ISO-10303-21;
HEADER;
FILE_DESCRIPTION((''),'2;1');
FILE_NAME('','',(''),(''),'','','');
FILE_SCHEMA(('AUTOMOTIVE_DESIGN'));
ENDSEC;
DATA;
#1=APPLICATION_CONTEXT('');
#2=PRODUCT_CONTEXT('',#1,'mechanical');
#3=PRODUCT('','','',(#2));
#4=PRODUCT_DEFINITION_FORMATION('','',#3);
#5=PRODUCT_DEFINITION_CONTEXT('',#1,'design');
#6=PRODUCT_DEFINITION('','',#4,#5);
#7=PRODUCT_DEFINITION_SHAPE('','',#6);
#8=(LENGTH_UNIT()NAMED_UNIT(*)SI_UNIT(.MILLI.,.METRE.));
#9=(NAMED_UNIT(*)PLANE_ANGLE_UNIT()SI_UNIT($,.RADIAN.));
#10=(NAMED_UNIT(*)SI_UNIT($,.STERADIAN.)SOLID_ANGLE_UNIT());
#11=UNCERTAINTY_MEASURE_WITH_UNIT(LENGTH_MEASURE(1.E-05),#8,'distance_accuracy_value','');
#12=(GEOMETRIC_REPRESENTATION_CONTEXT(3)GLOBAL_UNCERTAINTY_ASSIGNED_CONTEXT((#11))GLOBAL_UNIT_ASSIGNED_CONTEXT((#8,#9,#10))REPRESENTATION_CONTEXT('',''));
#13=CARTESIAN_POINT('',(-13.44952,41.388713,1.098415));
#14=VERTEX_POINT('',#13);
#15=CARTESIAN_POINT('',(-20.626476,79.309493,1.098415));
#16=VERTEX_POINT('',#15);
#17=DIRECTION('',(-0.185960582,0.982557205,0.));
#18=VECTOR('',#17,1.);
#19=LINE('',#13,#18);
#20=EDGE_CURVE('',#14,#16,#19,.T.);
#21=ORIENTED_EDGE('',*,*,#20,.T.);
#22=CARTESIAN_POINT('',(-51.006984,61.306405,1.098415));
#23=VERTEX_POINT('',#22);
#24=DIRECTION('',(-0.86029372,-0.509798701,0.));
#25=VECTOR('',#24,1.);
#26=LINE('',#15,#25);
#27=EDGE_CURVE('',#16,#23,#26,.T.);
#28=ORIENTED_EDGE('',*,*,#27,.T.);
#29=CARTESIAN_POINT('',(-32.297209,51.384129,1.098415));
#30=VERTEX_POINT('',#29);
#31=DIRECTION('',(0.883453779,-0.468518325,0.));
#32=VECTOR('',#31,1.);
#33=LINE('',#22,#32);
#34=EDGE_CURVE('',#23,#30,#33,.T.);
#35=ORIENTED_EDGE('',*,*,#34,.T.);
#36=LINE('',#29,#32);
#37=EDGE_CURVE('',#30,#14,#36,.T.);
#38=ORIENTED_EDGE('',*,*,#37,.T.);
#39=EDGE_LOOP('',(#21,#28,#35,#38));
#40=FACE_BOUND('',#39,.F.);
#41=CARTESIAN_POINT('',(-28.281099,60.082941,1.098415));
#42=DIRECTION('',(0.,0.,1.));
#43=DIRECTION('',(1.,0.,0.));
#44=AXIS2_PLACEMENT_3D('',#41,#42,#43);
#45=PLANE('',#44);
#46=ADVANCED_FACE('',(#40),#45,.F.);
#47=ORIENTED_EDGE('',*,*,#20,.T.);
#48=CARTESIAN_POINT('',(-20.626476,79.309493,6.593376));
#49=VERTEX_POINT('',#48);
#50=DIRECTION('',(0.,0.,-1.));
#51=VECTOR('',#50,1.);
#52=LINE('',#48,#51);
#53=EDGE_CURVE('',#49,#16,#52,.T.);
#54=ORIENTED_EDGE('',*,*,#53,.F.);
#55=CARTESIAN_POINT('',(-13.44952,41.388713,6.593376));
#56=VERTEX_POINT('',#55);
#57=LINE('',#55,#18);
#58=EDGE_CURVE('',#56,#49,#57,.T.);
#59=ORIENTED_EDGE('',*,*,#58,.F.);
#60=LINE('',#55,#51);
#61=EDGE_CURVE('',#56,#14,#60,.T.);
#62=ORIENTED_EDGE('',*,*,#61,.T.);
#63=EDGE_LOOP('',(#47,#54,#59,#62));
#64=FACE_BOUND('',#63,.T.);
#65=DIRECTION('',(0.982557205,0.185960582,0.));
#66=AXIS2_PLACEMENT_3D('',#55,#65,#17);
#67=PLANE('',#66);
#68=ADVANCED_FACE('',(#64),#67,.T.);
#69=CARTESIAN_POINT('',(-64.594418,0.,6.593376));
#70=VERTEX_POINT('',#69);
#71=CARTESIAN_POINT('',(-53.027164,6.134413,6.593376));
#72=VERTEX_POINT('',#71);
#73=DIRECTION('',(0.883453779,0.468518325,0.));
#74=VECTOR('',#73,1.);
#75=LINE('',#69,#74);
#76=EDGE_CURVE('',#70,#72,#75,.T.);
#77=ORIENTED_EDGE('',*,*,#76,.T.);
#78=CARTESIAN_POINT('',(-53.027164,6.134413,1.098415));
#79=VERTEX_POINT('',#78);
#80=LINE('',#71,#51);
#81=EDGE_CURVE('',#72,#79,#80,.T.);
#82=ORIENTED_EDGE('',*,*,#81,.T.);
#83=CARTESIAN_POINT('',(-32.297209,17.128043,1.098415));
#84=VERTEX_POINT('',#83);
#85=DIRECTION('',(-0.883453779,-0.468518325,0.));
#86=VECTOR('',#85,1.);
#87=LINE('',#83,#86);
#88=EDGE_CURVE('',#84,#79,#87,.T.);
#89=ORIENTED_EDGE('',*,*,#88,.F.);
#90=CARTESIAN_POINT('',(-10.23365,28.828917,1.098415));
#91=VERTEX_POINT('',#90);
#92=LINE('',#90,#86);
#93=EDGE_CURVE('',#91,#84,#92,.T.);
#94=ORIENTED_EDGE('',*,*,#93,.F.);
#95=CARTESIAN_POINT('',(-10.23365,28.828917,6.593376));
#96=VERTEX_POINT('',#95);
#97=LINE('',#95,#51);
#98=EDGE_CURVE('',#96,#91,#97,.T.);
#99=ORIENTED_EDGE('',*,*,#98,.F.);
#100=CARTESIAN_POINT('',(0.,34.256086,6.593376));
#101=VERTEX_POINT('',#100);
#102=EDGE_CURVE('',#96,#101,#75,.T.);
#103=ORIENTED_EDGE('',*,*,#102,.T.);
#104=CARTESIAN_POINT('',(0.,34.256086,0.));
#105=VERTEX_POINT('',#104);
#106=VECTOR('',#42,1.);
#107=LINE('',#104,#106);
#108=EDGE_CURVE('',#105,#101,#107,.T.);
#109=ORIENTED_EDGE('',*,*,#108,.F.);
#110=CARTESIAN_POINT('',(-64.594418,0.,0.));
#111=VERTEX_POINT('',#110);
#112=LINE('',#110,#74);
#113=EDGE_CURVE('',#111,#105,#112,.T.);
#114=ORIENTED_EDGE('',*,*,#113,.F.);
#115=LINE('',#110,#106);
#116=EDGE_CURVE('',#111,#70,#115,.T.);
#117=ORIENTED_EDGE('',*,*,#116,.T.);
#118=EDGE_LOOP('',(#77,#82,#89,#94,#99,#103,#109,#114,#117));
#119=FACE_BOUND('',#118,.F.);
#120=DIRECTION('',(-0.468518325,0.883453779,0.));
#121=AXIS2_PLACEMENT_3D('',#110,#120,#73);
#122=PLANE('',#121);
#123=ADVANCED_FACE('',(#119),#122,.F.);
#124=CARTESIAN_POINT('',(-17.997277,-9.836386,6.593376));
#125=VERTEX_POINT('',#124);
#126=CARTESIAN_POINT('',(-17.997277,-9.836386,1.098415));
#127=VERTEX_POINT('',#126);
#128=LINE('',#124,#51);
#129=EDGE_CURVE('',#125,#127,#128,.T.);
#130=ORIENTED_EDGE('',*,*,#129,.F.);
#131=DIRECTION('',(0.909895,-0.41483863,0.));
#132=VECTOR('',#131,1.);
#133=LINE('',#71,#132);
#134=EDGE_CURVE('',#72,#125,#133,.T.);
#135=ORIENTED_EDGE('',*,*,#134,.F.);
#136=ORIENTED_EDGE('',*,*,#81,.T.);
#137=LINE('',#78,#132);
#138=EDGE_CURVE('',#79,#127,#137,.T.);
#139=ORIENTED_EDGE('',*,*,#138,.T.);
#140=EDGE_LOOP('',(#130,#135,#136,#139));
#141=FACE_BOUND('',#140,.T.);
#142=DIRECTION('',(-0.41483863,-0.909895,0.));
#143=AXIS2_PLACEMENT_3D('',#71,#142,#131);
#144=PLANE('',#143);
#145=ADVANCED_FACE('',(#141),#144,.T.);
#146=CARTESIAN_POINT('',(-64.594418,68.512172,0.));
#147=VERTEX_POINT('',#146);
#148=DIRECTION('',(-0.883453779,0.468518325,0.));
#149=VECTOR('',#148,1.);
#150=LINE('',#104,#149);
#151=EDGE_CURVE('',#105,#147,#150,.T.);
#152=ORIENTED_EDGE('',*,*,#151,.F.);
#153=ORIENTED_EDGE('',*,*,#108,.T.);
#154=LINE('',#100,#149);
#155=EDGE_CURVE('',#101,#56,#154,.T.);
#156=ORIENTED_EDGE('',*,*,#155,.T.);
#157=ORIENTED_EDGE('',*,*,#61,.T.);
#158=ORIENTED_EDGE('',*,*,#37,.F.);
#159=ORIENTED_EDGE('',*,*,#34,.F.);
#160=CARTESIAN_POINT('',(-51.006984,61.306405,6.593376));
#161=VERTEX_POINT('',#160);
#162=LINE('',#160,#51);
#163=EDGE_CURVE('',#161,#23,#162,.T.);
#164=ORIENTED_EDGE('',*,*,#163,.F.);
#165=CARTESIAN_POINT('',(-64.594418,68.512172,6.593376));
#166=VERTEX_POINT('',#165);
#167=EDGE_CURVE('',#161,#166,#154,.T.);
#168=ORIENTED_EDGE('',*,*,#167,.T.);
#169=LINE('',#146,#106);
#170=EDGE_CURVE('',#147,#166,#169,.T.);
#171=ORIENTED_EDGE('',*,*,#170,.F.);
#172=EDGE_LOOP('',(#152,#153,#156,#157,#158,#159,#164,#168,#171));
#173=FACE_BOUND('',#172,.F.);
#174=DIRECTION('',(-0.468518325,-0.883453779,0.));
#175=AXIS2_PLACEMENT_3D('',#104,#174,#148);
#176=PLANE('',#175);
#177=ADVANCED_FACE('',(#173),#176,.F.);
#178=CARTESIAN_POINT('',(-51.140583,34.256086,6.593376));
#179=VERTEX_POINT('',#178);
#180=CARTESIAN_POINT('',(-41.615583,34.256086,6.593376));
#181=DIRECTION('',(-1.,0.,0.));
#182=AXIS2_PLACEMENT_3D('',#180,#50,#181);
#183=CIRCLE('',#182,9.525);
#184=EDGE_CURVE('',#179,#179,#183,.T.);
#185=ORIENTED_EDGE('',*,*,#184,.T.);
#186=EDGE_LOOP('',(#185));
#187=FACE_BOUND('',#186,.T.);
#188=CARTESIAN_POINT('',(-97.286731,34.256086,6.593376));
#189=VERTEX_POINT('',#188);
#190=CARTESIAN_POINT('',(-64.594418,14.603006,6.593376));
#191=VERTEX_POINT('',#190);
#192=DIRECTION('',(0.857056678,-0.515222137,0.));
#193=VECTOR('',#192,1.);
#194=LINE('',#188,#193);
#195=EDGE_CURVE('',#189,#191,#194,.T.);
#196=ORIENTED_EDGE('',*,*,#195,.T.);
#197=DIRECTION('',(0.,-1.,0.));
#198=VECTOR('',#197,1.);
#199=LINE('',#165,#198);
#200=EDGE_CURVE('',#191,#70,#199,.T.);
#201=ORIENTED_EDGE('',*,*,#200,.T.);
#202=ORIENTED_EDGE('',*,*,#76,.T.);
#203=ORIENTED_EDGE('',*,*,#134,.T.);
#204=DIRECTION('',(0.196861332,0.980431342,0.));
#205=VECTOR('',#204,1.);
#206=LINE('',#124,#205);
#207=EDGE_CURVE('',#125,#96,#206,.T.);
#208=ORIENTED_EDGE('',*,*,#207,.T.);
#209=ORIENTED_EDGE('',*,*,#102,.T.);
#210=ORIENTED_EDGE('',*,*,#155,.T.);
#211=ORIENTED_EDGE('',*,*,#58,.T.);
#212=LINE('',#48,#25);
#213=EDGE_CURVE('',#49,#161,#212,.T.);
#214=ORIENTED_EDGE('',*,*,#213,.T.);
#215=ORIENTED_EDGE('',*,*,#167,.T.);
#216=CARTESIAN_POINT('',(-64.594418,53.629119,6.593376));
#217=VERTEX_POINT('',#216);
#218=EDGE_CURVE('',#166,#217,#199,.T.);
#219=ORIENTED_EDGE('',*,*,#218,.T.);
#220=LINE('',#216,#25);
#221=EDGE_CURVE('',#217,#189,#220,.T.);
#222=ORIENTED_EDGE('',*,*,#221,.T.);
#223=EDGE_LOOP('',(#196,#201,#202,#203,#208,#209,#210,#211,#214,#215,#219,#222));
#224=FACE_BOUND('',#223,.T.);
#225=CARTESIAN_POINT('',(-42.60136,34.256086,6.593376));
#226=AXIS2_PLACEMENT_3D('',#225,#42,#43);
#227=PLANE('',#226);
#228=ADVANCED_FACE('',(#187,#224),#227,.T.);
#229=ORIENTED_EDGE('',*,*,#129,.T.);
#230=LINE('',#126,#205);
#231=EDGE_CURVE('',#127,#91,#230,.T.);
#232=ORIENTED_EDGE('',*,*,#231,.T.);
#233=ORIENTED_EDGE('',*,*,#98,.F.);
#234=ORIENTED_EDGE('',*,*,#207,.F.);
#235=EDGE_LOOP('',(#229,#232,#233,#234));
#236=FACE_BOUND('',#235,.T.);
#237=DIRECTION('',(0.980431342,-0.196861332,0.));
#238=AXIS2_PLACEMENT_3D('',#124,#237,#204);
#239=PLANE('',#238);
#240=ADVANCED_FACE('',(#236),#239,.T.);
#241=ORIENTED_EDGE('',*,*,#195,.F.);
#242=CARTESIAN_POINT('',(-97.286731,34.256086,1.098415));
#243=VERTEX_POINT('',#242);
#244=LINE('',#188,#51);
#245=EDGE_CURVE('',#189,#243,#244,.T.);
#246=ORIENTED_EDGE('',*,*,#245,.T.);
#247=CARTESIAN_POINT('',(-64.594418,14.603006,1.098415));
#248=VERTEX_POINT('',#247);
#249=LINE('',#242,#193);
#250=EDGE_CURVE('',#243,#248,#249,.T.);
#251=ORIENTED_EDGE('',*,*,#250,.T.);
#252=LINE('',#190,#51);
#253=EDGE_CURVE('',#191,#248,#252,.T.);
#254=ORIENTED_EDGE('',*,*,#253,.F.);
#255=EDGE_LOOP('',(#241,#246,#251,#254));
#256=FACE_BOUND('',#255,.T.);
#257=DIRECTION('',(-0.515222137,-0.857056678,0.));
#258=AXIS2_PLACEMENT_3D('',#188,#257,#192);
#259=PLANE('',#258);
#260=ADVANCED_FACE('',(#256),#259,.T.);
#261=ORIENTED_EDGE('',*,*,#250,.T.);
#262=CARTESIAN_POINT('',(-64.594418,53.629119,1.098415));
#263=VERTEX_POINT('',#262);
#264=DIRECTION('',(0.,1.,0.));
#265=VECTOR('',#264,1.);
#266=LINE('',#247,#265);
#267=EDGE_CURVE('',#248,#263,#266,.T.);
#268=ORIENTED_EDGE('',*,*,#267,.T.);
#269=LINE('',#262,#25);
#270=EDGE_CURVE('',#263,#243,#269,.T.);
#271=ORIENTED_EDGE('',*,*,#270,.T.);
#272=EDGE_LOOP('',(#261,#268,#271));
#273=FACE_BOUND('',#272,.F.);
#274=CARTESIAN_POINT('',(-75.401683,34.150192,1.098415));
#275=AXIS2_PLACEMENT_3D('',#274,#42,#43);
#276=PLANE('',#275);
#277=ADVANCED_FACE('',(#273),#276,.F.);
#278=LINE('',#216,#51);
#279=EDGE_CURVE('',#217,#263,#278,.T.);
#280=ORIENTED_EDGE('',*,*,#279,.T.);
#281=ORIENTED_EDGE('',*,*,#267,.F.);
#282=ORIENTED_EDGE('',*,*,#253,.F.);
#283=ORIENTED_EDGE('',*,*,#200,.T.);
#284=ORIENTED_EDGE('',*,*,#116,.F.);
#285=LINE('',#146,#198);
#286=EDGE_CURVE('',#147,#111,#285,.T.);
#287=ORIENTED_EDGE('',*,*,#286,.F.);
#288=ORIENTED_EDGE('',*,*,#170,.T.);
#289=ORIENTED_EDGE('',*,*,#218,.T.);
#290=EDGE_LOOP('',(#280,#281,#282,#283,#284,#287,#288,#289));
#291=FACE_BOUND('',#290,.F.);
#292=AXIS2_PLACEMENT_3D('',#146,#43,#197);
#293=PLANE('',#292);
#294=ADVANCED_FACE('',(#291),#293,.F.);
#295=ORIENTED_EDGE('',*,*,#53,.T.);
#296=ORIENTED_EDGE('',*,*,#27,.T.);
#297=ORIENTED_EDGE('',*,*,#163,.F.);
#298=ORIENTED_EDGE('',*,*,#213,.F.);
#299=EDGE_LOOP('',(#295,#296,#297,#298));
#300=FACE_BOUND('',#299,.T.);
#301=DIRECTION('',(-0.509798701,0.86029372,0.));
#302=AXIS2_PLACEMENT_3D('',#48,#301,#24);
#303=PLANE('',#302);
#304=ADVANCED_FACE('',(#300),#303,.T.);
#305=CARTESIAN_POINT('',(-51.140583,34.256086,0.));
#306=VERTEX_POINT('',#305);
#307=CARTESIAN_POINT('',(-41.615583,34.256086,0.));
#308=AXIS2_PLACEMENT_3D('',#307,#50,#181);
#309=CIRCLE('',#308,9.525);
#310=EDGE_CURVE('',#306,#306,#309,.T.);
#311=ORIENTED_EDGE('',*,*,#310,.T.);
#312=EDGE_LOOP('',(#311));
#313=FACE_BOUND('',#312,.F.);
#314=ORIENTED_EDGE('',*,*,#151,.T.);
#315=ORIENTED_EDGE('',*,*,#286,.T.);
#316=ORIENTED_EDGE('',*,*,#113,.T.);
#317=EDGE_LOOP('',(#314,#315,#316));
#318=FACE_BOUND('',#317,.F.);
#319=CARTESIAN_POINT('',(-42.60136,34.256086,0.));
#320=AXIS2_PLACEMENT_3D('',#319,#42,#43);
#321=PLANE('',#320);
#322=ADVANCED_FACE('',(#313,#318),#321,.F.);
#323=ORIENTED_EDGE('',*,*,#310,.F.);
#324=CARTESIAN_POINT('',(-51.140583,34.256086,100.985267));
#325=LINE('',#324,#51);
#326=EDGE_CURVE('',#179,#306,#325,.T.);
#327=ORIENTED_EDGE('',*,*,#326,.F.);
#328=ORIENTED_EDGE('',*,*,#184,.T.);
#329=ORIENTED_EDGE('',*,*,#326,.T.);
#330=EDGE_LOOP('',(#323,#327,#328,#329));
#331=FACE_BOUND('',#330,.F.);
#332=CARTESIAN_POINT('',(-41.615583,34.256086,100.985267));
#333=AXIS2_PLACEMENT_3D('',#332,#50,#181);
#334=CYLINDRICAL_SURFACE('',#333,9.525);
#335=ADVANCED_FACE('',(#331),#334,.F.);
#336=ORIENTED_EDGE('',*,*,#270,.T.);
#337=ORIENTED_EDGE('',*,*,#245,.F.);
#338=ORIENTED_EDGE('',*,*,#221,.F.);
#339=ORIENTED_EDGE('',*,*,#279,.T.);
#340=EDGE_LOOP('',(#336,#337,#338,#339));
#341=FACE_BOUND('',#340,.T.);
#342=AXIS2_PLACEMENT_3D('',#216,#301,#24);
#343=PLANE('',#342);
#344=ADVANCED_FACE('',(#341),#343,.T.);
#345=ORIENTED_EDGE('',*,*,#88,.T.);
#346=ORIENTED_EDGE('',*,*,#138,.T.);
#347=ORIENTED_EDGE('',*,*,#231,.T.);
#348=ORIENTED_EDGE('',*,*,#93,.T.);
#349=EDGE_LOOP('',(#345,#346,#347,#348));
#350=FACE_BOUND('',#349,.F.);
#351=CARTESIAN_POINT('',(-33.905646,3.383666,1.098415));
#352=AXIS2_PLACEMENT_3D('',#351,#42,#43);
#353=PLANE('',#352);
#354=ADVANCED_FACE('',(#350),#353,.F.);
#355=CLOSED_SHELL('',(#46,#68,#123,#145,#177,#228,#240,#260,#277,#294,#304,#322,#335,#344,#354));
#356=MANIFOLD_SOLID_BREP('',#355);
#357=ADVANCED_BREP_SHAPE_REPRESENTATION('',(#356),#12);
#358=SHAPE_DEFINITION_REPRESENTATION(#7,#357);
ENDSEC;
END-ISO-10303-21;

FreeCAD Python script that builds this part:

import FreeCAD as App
import Part
import Sketcher
from FreeCAD import Vector
Q = App.Units.Quantity

doc = App.newDocument("Part")
body = doc.addObject("PartDesign::Body", "Body")

sketch1 = doc.addObject("Sketcher::SketchObject", "Sketch")
body.addObject(sketch1)
sketch1.AttachmentSupport = (doc.XY_Plane, [""])
sketch1.MapMode = "FlatFace"
sketch1.addGeometry(Part.LineSegment(Vector(-64.594418, 68.512172, 0), Vector(-64.594418, 0, 0)), False)
sketch1.addGeometry(Part.LineSegment(Vector(-64.594418, 0, 0), Vector(0, 34.256086, 0)), False)
sketch1.addGeometry(Part.LineSegment(Vector(0, 34.256086, 0), Vector(-64.594418, 68.512172, 0)), False)
sketch1.addConstraint(Sketcher.Constraint("Coincident", 0, 2, 1, 1))
sketch1.addConstraint(Sketcher.Constraint("Coincident", 1, 2, 2, 1))
sketch1.addConstraint(Sketcher.Constraint("Coincident", 2, 2, 0, 1))
sketch1.addConstraint(Sketcher.Constraint("Vertical", 0))
sketch1.addConstraint(Sketcher.Constraint("PointOnObject", 0, 2, -1))
sketch1.addConstraint(Sketcher.Constraint("PointOnObject", 1, 2, -2))
sketch1.addConstraint(Sketcher.Constraint("Equal", 1, 2))
sketch1.addConstraint(Sketcher.Constraint("DistanceY", 0, 2, 0, 1, Q("68.512172 mm")))
sketch1.addConstraint(Sketcher.Constraint("Distance", 1, Q("73.115786 mm")))
pad1 = doc.addObject("PartDesign::Pad", "Pad")
body.addObject(pad1)
pad1.Profile = sketch1
pad1.Length = 6.593376

sketch2 = doc.addObject("Sketcher::SketchObject", "Sketch001")
body.addObject(sketch2)
sketch2.AttachmentSupport = (doc.XY_Plane, [""])
sketch2.MapMode = "FlatFace"
sketch2.AttachmentOffset = App.Placement(Vector(0, 0, 6.593376), App.Rotation())
sketch2.addGeometry(Part.Circle(Vector(-41.615583, 34.256086, 0), Vector(0, 0, 1), 9.525), False)
sketch2.addConstraint(Sketcher.Constraint("Diameter", 0, Q("0.75 in")))
sketch2.addConstraint(Sketcher.Constraint("DistanceX", 0, 3, -1, 1, Q("41.615583 mm")))
sketch2.addConstraint(Sketcher.Constraint("DistanceY", -1, 1, 0, 3, Q("34.256086 mm")))
doc.recompute()
hole = doc.addObject("PartDesign::Hole", "Hole")
body.addObject(hole)
hole.Profile = sketch2
hole.ThreadType = "None"
hole.Diameter = Q("0.75 in")
hole.DepthType = "ThroughAll"

sketch3 = doc.addObject("Sketcher::SketchObject", "Sketch002")
body.addObject(sketch3)
sketch3.AttachmentSupport = (doc.XY_Plane, [""])
sketch3.MapMode = "FlatFace"
sketch3.AttachmentOffset = App.Placement(Vector(0, 0, 6.593376), App.Rotation())
sketch3.addGeometry(Part.LineSegment(Vector(-97.286731, 34.256086, 0), Vector(-64.594418, 14.603006, 0)), False)
sketch3.addGeometry(Part.LineSegment(Vector(-64.594418, 14.603006, 0), Vector(-64.594418, 53.629119, 0)), False)
sketch3.addGeometry(Part.LineSegment(Vector(-64.594418, 53.629119, 0), Vector(-97.286731, 34.256086, 0)), False)
sketch3.addGeometry(Part.LineSegment(Vector(-32.297209, 17.128043, 0), Vector(-53.027164, 6.134413, 0)), False)
sketch3.addGeometry(Part.LineSegment(Vector(-53.027164, 6.134413, 0), Vector(-17.997277, -9.836386, 0)), False)
sketch3.addGeometry(Part.LineSegment(Vector(-17.997277, -9.836386, 0), Vector(-10.23365, 28.828917, 0)), False)
sketch3.addGeometry(Part.LineSegment(Vector(-10.23365, 28.828917, 0), Vector(-32.297209, 17.128043, 0)), False)
sketch3.addGeometry(Part.LineSegment(Vector(-20.626476, 79.309493, 0), Vector(-51.006984, 61.306405, 0)), False)
sketch3.addGeometry(Part.LineSegment(Vector(-51.006984, 61.306405, 0), Vector(-32.297209, 51.384129, 0)), False)
sketch3.addGeometry(Part.LineSegment(Vector(-32.297209, 51.384129, 0), Vector(-13.44952, 41.388713, 0)), False)
sketch3.addGeometry(Part.LineSegment(Vector(-13.44952, 41.388713, 0), Vector(-20.626476, 79.309493, 0)), False)
sketch3.addConstraint(Sketcher.Constraint("Coincident", 0, 2, 1, 1))
sketch3.addConstraint(Sketcher.Constraint("Coincident", 1, 2, 2, 1))
sketch3.addConstraint(Sketcher.Constraint("Coincident", 2, 2, 0, 1))
sketch3.addConstraint(Sketcher.Constraint("Coincident", 3, 2, 4, 1))
sketch3.addConstraint(Sketcher.Constraint("Coincident", 4, 2, 5, 1))
sketch3.addConstraint(Sketcher.Constraint("Coincident", 5, 2, 6, 1))
sketch3.addConstraint(Sketcher.Constraint("Coincident", 6, 2, 3, 1))
sketch3.addConstraint(Sketcher.Constraint("Coincident", 7, 2, 8, 1))
sketch3.addConstraint(Sketcher.Constraint("Coincident", 8, 2, 9, 1))
sketch3.addConstraint(Sketcher.Constraint("Coincident", 9, 2, 10, 1))
sketch3.addConstraint(Sketcher.Constraint("Coincident", 10, 2, 7, 1))
sketch3.addConstraint(Sketcher.Constraint("Vertical", 1))
sketch3.addConstraint(Sketcher.Constraint("Parallel", 3, 6))
sketch3.addConstraint(Sketcher.Constraint("Parallel", 2, 7))
sketch3.addConstraint(Sketcher.Constraint("Parallel", 8, 9))
sketch3.addConstraint(Sketcher.Constraint("Vertical", 6, 2, 8, 2))
sketch3.addConstraint(Sketcher.Constraint("DistanceY", 4, 2, 3, 2, Q("15.970799 mm")))
sketch3.addConstraint(Sketcher.Constraint("DistanceY", 5, 2, 1, 2, Q("24.800202 mm")))
sketch3.addConstraint(Sketcher.Constraint("DistanceY", 0, 2, 7, 2, Q("46.703399 mm")))
sketch3.addConstraint(Sketcher.Constraint("DistanceY", 4, 2, 9, 2, Q("51.225099 mm")))
sketch3.addConstraint(Sketcher.Constraint("Distance", 2, Q("38.001339 mm")))
sketch3.addConstraint(Sketcher.Constraint("Distance", 6, Q("24.974208 mm")))
sketch3.addConstraint(Sketcher.Constraint("Distance", 7, Q("35.314111 mm")))
sketch3.addConstraint(Sketcher.Constraint("Distance", 8, Q("21.17799 mm")))
sketch3.addConstraint(Sketcher.Constraint("DistanceY", 1, 1, 1, 2, Q("39.026113 mm")))
sketch3.addConstraint(Sketcher.Constraint("DistanceY", -1, 1, 1, 2, Q("53.629119 mm")))
sketch3.addConstraint(Sketcher.Constraint("DistanceX", 2, 2, -1, 1, Q("97.286731 mm")))
sketch3.addConstraint(Sketcher.Constraint("DistanceX", 5, 2, -1, 1, Q("10.23365 mm")))
sketch3.addConstraint(Sketcher.Constraint("DistanceX", 6, 2, -1, 1, Q("32.297209 mm")))
sketch3.addConstraint(Sketcher.Constraint("DistanceY", -1, 1, 8, 2, Q("51.384129 mm")))
sketch3.addConstraint(Sketcher.Constraint("DistanceX", 9, 2, -1, 1, Q("13.44952 mm")))
sketch3.addConstraint(Sketcher.Constraint("DistanceY", 0, 2, 2, 2, Q("19.65308 mm")))
sketch3.addConstraint(Sketcher.Constraint("DistanceX", 0, 2, 4, 2, Q("46.597141 mm")))
pad2 = doc.addObject("PartDesign::Pad", "Pad001")
body.addObject(pad2)
pad2.Profile = sketch3
pad2.Length = 5.494962
pad2.Reversed = True

doc.recompute()
